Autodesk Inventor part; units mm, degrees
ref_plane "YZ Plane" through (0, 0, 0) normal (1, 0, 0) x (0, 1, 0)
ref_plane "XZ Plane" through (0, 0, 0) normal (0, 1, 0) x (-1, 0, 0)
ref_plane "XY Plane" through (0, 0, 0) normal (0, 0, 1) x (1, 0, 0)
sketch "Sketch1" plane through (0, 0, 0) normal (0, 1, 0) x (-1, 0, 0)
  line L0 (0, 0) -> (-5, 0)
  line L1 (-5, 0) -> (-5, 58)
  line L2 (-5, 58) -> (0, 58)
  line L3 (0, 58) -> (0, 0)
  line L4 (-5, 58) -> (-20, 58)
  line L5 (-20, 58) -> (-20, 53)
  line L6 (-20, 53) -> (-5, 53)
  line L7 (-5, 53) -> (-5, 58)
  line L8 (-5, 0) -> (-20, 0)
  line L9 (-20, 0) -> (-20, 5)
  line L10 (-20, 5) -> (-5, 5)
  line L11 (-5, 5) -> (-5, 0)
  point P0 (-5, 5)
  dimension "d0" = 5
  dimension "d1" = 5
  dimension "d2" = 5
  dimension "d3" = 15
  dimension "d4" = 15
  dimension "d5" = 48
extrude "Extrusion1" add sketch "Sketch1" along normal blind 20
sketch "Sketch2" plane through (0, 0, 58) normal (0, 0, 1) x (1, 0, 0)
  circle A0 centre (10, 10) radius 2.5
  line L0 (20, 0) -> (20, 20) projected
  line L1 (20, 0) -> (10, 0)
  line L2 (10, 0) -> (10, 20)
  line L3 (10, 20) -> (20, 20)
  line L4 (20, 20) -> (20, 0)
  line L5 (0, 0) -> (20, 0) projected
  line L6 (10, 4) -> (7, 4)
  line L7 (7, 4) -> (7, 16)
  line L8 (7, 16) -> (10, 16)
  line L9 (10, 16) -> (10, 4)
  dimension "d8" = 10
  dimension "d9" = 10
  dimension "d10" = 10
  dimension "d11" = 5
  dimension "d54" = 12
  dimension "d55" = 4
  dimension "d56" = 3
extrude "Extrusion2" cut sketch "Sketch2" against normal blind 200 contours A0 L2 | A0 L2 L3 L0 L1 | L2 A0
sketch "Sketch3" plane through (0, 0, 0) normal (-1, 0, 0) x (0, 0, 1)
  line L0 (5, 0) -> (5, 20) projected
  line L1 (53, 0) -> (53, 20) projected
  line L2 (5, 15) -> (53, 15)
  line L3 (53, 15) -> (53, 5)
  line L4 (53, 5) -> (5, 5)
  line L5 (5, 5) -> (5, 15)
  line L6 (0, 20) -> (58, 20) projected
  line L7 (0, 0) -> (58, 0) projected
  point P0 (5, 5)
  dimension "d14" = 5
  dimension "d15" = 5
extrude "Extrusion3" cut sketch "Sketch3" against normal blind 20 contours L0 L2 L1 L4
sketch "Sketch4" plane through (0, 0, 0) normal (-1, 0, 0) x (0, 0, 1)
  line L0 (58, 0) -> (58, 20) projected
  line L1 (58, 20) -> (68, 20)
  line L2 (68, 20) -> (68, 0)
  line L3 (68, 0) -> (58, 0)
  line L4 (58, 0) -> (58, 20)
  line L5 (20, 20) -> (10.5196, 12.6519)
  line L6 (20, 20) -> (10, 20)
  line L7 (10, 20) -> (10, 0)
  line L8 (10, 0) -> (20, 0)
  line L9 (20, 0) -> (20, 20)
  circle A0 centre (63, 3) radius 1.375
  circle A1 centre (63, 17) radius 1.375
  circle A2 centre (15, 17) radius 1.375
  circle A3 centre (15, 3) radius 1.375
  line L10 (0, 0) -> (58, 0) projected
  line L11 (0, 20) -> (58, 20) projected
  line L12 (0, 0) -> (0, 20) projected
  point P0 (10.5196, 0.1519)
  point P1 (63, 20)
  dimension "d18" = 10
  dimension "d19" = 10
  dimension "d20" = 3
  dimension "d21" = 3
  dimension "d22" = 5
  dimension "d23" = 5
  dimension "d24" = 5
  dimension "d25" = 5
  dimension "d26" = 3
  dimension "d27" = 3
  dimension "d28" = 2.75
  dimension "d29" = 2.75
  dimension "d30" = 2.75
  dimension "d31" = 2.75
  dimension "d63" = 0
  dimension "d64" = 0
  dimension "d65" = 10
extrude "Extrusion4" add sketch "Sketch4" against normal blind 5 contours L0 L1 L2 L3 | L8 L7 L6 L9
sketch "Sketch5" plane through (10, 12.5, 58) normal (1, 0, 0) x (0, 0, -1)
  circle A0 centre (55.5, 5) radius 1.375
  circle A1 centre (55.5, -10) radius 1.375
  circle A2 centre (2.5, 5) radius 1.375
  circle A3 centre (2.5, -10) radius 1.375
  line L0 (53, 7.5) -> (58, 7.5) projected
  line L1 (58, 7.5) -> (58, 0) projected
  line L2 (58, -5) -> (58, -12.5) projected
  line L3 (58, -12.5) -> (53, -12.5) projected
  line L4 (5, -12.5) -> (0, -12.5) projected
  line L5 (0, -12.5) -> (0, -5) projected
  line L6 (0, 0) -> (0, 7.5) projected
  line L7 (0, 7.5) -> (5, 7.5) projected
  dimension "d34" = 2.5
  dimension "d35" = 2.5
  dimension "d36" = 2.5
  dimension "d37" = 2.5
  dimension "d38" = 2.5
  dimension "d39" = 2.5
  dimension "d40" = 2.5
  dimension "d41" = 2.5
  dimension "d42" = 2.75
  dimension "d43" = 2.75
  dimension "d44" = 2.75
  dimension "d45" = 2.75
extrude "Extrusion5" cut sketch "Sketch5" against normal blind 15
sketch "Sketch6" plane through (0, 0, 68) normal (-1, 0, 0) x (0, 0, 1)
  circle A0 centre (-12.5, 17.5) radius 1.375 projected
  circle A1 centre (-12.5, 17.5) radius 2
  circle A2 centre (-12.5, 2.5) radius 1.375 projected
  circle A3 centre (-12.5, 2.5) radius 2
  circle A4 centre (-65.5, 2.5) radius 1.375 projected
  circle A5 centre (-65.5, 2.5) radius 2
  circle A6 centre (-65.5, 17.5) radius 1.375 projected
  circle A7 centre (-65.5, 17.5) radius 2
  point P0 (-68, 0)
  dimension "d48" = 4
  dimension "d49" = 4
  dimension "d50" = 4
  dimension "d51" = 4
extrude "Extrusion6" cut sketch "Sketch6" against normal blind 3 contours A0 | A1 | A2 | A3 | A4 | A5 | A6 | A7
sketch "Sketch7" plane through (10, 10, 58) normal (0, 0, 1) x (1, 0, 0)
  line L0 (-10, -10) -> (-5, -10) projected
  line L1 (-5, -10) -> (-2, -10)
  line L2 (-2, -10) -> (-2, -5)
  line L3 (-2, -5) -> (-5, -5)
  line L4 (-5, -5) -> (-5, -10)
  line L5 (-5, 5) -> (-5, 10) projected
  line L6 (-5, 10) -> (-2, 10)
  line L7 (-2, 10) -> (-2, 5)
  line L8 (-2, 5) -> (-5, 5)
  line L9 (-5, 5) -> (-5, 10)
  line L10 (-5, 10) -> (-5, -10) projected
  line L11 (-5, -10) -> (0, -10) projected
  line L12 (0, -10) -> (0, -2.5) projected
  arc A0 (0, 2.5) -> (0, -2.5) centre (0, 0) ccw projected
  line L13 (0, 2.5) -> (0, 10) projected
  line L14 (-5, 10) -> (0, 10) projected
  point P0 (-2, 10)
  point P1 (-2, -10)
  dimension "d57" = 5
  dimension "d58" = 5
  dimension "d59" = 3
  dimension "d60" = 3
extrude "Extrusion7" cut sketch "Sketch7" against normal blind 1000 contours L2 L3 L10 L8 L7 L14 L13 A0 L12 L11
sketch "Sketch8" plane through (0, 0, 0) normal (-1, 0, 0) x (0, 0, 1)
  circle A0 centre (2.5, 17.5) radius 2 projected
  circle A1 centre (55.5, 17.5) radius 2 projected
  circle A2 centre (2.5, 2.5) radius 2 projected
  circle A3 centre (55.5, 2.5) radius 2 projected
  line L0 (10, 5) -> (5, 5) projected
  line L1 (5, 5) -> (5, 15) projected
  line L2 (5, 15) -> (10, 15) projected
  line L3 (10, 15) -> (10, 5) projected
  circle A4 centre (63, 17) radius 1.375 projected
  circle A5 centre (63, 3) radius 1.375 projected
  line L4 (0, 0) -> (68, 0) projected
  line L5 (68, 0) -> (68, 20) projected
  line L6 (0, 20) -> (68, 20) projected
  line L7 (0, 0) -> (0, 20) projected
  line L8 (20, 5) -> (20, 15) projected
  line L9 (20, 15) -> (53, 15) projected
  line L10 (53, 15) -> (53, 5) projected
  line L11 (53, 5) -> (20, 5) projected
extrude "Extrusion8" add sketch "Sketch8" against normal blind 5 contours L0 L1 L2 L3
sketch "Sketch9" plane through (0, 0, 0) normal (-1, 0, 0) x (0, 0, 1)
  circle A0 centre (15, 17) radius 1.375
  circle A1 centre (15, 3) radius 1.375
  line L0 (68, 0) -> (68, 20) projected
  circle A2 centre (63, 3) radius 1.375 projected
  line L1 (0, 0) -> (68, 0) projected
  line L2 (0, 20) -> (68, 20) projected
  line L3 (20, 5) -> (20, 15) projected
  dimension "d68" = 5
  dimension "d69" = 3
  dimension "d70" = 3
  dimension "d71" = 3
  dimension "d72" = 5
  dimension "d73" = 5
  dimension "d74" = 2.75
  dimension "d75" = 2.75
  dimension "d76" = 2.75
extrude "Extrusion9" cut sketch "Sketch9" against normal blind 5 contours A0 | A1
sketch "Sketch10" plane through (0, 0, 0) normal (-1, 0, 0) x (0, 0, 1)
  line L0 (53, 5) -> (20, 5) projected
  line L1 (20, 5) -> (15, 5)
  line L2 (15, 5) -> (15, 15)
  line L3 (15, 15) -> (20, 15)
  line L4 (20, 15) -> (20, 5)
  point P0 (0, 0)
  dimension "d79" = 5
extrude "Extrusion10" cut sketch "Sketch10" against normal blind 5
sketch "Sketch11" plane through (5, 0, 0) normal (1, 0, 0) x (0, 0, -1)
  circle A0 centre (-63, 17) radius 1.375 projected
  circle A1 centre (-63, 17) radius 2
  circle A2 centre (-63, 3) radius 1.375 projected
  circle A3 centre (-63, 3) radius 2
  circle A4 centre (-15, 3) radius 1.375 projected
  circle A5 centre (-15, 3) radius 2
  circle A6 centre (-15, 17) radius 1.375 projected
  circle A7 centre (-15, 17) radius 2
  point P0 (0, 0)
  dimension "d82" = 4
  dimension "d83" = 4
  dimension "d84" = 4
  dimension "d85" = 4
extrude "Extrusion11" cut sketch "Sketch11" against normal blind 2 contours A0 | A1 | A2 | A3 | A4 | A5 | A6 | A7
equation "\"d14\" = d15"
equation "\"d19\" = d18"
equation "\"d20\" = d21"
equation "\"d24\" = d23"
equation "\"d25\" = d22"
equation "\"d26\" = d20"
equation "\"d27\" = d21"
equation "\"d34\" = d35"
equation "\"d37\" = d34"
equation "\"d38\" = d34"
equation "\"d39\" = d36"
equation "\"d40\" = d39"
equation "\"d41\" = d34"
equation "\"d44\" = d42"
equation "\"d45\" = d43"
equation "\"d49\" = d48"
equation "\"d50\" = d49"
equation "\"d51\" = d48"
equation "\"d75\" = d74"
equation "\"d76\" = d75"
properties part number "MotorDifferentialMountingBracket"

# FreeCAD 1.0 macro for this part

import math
import FreeCAD as App
import Part
import Sketcher
from FreeCAD import Vector
Q = App.Units.Quantity

doc = App.newDocument("Part")
body = doc.addObject("PartDesign::Body", "Body")

sketch1 = body.newObject("Sketcher::SketchObject", "Sketch")
sketch1.AttachmentSupport = (doc.getObject("XZ_Plane"), [""])
sketch1.MapMode = "FlatFace"
sketch1.addGeometry(Part.LineSegment(Vector(0, 0, 0), Vector(0, 58, 0)), False)
sketch1.addGeometry(Part.LineSegment(Vector(0, 58, 0), Vector(20, 58, 0)), False)
sketch1.addGeometry(Part.LineSegment(Vector(20, 58, 0), Vector(20, 53, 0)), False)
sketch1.addGeometry(Part.LineSegment(Vector(20, 53, 0), Vector(5, 53, 0)), False)
sketch1.addGeometry(Part.LineSegment(Vector(5, 53, 0), Vector(5, 5, 0)), False)
sketch1.addGeometry(Part.LineSegment(Vector(5, 5, 0), Vector(20, 5, 0)), False)
sketch1.addGeometry(Part.LineSegment(Vector(20, 5, 0), Vector(20, 0, 0)), False)
sketch1.addGeometry(Part.LineSegment(Vector(20, 0, 0), Vector(0, 0, 0)), False)
sketch1.addConstraint(Sketcher.Constraint("Coincident", 0, 2, 1, 1))
sketch1.addConstraint(Sketcher.Constraint("Coincident", 1, 2, 2, 1))
sketch1.addConstraint(Sketcher.Constraint("Coincident", 2, 2, 3, 1))
sketch1.addConstraint(Sketcher.Constraint("Coincident", 3, 2, 4, 1))
sketch1.addConstraint(Sketcher.Constraint("Coincident", 4, 2, 5, 1))
sketch1.addConstraint(Sketcher.Constraint("Coincident", 5, 2, 6, 1))
sketch1.addConstraint(Sketcher.Constraint("Coincident", 6, 2, 7, 1))
sketch1.addConstraint(Sketcher.Constraint("Coincident", 7, 2, 0, 1))
sketch1.addConstraint(Sketcher.Constraint("Vertical", 0))
sketch1.addConstraint(Sketcher.Constraint("Horizontal", 1))
sketch1.addConstraint(Sketcher.Constraint("Vertical", 2))
sketch1.addConstraint(Sketcher.Constraint("Horizontal", 3))
sketch1.addConstraint(Sketcher.Constraint("Vertical", 4))
sketch1.addConstraint(Sketcher.Constraint("Horizontal", 5))
sketch1.addConstraint(Sketcher.Constraint("Vertical", 6))
sketch1.addConstraint(Sketcher.Constraint("Horizontal", 7))
sketch1.addConstraint(Sketcher.Constraint("Coincident", 7, 2, -1, 1))
sketch1.addConstraint(Sketcher.Constraint("Vertical", 2, 2, 5, 2))
sketch1.addConstraint(Sketcher.Constraint("Equal", 2, 6))
sketch1.addConstraint(Sketcher.Constraint("DistanceX", 3, 2, 3, 1, Q("15 mm")))
sketch1.addConstraint(Sketcher.Constraint("DistanceY", 2, 2, 2, 1, Q("5 mm")))
sketch1.addConstraint(Sketcher.Constraint("DistanceY", 4, 2, 4, 1, Q("48 mm")))
sketch1.addConstraint(Sketcher.Constraint("DistanceX", -1, 1, 3, 2, Q("5 mm")))
pad1 = body.newObject("PartDesign::Pad", "Pad")
pad1.Profile = sketch1
pad1.Length = 20
pad1.Reversed = True

sketch2 = body.newObject("Sketcher::SketchObject", "Sketch001")
sketch2.AttachmentSupport = (doc.getObject("XY_Plane"), [""])
sketch2.MapMode = "FlatFace"
sketch2.AttachmentOffset = App.Placement(Vector(0, 0, 58), App.Rotation())
sketch2.addGeometry(Part.LineSegment(Vector(10, 7.5, 0), Vector(10, 0, 0)), False)
sketch2.addGeometry(Part.LineSegment(Vector(10, 0, 0), Vector(20, 0, 0)), False)
sketch2.addGeometry(Part.LineSegment(Vector(20, 0, 0), Vector(20, 20, 0)), False)
sketch2.addGeometry(Part.LineSegment(Vector(20, 20, 0), Vector(10, 20, 0)), False)
sketch2.addGeometry(Part.LineSegment(Vector(10, 20, 0), Vector(10, 12.5, 0)), False)
sketch2.addGeometry(Part.ArcOfCircle(Part.Circle(Vector(10, 10, 0), Vector(0, 0, 1), 2.5), math.radians(90), math.radians(270)), False)
sketch2.addConstraint(Sketcher.Constraint("Coincident", 0, 2, 1, 1))
sketch2.addConstraint(Sketcher.Constraint("Coincident", 1, 2, 2, 1))
sketch2.addConstraint(Sketcher.Constraint("Coincident", 2, 2, 3, 1))
sketch2.addConstraint(Sketcher.Constraint("Coincident", 3, 2, 4, 1))
sketch2.addConstraint(Sketcher.Constraint("Coincident", 4, 2, 5, 1))
sketch2.addConstraint(Sketcher.Constraint("Coincident", 5, 2, 0, 1))
sketch2.addConstraint(Sketcher.Constraint("Vertical", 0))
sketch2.addConstraint(Sketcher.Constraint("Horizontal", 1))
sketch2.addConstraint(Sketcher.Constraint("Vertical", 2))
sketch2.addConstraint(Sketcher.Constraint("Horizontal", 3))
sketch2.addConstraint(Sketcher.Constraint("Vertical", 4))
sketch2.addConstraint(Sketcher.Constraint("PointOnObject", 0, 2, -1))
sketch2.addConstraint(Sketcher.Constraint("Vertical", 5, 3, 0, 2))
sketch2.addConstraint(Sketcher.Constraint("Vertical", 0, 2, 3, 2))
sketch2.addConstraint(Sketcher.Constraint("Equal", 0, 4))
sketch2.addConstraint(Sketcher.Constraint("Radius", 5, Q("2.5 mm")))
sketch2.addConstraint(Sketcher.Constraint("DistanceX", 1, 1, 1, 2, Q("10 mm")))
sketch2.addConstraint(Sketcher.Constraint("DistanceX", -1, 1, 5, 3, Q("10 mm")))
sketch2.addConstraint(Sketcher.Constraint("DistanceY", -1, 1, 5, 3, Q("10 mm")))
pocket1 = body.newObject("PartDesign::Pocket", "Pocket")
pocket1.Profile = sketch2
pocket1.Length = 200

sketch3 = body.newObject("Sketcher::SketchObject", "Sketch002")
sketch3.AttachmentSupport = (doc.getObject("YZ_Plane"), [""])
sketch3.MapMode = "FlatFace"
sketch3.addGeometry(Part.LineSegment(Vector(15, 5, 0), Vector(5, 5, 0)), False)
sketch3.addGeometry(Part.LineSegment(Vector(5, 5, 0), Vector(5, 53, 0)), False)
sketch3.addGeometry(Part.LineSegment(Vector(5, 53, 0), Vector(15, 53, 0)), False)
sketch3.addGeometry(Part.LineSegment(Vector(15, 53, 0), Vector(15, 5, 0)), False)
sketch3.addConstraint(Sketcher.Constraint("Coincident", 0, 2, 1, 1))
sketch3.addConstraint(Sketcher.Constraint("Coincident", 1, 2, 2, 1))
sketch3.addConstraint(Sketcher.Constraint("Coincident", 2, 2, 3, 1))
sketch3.addConstraint(Sketcher.Constraint("Coincident", 3, 2, 0, 1))
sketch3.addConstraint(Sketcher.Constraint("Horizontal", 0))
sketch3.addConstraint(Sketcher.Constraint("Vertical", 1))
sketch3.addConstraint(Sketcher.Constraint("Horizontal", 2))
sketch3.addConstraint(Sketcher.Constraint("Vertical", 3))
sketch3.addConstraint(Sketcher.Constraint("DistanceX", -1, 1, 0, 2, Q("5 mm")))
sketch3.addConstraint(Sketcher.Constraint("DistanceY", -1, 1, 0, 2, Q("5 mm")))
sketch3.addConstraint(Sketcher.Constraint("DistanceX", 0, 2, 0, 1, Q("10 mm")))
sketch3.addConstraint(Sketcher.Constraint("DistanceY", 1, 1, 1, 2, Q("48 mm")))
pocket2 = body.newObject("PartDesign::Pocket", "Pocket001")
pocket2.Profile = sketch3
pocket2.Length = 20
pocket2.Reversed = True

sketch4 = body.newObject("Sketcher::SketchObject", "Sketch003")
sketch4.AttachmentSupport = (doc.getObject("YZ_Plane"), [""])
sketch4.MapMode = "FlatFace"
sketch4.addGeometry(Part.LineSegment(Vector(20, 58, 0), Vector(0, 58, 0)), False)
sketch4.addGeometry(Part.LineSegment(Vector(0, 58, 0), Vector(0, 68, 0)), False)
sketch4.addGeometry(Part.LineSegment(Vector(0, 68, 0), Vector(20, 68, 0)), False)
sketch4.addGeometry(Part.LineSegment(Vector(20, 68, 0), Vector(20, 58, 0)), False)
sketch4.addGeometry(Part.Circle(Vector(3, 63, 0), Vector(0, 0, 1), 1.4), False)
sketch4.addGeometry(Part.Circle(Vector(17, 63, 0), Vector(0, 0, 1), 1.4), False)
sketch4.addGeometry(Part.LineSegment(Vector(0, 10, 0), Vector(0, 20, 0)), False)
sketch4.addGeometry(Part.LineSegment(Vector(0, 20, 0), Vector(20, 20, 0)), False)
sketch4.addGeometry(Part.LineSegment(Vector(20, 20, 0), Vector(20, 10, 0)), False)
sketch4.addGeometry(Part.LineSegment(Vector(20, 10, 0), Vector(0, 10, 0)), False)
sketch4.addGeometry(Part.Circle(Vector(3, 15, 0), Vector(0, 0, 1), 1.4), False)
sketch4.addGeometry(Part.Circle(Vector(17, 15, 0), Vector(0, 0, 1), 1.4), False)
sketch4.addConstraint(Sketcher.Constraint("Coincident", 0, 2, 1, 1))
sketch4.addConstraint(Sketcher.Constraint("Coincident", 1, 2, 2, 1))
sketch4.addConstraint(Sketcher.Constraint("Coincident", 2, 2, 3, 1))
sketch4.addConstraint(Sketcher.Constraint("Coincident", 3, 2, 0, 1))
sketch4.addConstraint(Sketcher.Constraint("Coincident", 6, 2, 7, 1))
sketch4.addConstraint(Sketcher.Constraint("Coincident", 7, 2, 8, 1))
sketch4.addConstraint(Sketcher.Constraint("Coincident", 8, 2, 9, 1))
sketch4.addConstraint(Sketcher.Constraint("Coincident", 9, 2, 6, 1))
sketch4.addConstraint(Sketcher.Constraint("Horizontal", 0))
sketch4.addConstraint(Sketcher.Constraint("Vertical", 1))
sketch4.addConstraint(Sketcher.Constraint("Horizontal", 2))
sketch4.addConstraint(Sketcher.Constraint("Vertical", 3))
sketch4.addConstraint(Sketcher.Constraint("Vertical", 6))
sketch4.addConstraint(Sketcher.Constraint("Horizontal", 7))
sketch4.addConstraint(Sketcher.Constraint("Vertical", 8))
sketch4.addConstraint(Sketcher.Constraint("Horizontal", 9))
sketch4.addConstraint(Sketcher.Constraint("Equal", 4, 5))
sketch4.addConstraint(Sketcher.Constraint("Equal", 5, 10))
sketch4.addConstraint(Sketcher.Constraint("Equal", 10, 11))
sketch4.addConstraint(Sketcher.Constraint("PointOnObject", 0, 2, -2))
sketch4.addConstraint(Sketcher.Constraint("PointOnObject", 6, 2, -2))
sketch4.addConstraint(Sketcher.Constraint("Horizontal", 4, 3, 5, 3))
sketch4.addConstraint(Sketcher.Constraint("Horizontal", 10, 3, 11, 3))
sketch4.addConstraint(Sketcher.Constraint("Vertical", 4, 3, 10, 3))
sketch4.addConstraint(Sketcher.Constraint("Vertical", 5, 3, 11, 3))
sketch4.addConstraint(Sketcher.Constraint("Vertical", 3, 2, 7, 2))
sketch4.addConstraint(Sketcher.Constraint("Equal", 3, 6))
sketch4.addConstraint(Sketcher.Constraint("Diameter", 4, Q("2.75 mm")))
sketch4.addConstraint(Sketcher.Constraint("DistanceY", 1, 1, 1, 2, Q("10 mm")))
sketch4.addConstraint(Sketcher.Constraint("DistanceX", -1, 1, 4, 3, Q("3 mm")))
sketch4.addConstraint(Sketcher.Constraint("DistanceY", -1, 1, 8, 2, Q("10 mm")))
sketch4.addConstraint(Sketcher.Constraint("DistanceY", 0, 2, 4, 3, Q("5 mm")))
sketch4.addConstraint(Sketcher.Constraint("DistanceX", 5, 3, 2, 2, Q("3 mm")))
sketch4.addConstraint(Sketcher.Constraint("DistanceY", 10, 3, 6, 2, Q("5 mm")))
sketch4.addConstraint(Sketcher.Constraint("DistanceX", 0, 2, 0, 1, Q("20 mm")))
sketch4.addConstraint(Sketcher.Constraint("DistanceY", -1, 1, 4, 3, Q("63 mm")))
pad2 = body.newObject("PartDesign::Pad", "Pad001")
pad2.Profile = sketch4
pad2.Length = 5

sketch5 = body.newObject("Sketcher::SketchObject", "Sketch004")
sketch5.AttachmentSupport = (doc.getObject("YZ_Plane"), [""])
sketch5.MapMode = "FlatFace"
sketch5.AttachmentOffset = App.Placement(Vector(0, 0, 10), App.Rotation())
sketch5.addGeometry(Part.Circle(Vector(17.5, 2.5, 0), Vector(0, 0, 1), 1.4), False)
sketch5.addGeometry(Part.Circle(Vector(2.5, 2.5, 0), Vector(0, 0, 1), 1.4), False)
sketch5.addGeometry(Part.Circle(Vector(17.5, 55.5, 0), Vector(0, 0, 1), 1.4), False)
sketch5.addGeometry(Part.Circle(Vector(2.5, 55.5, 0), Vector(0, 0, 1), 1.4), False)
sketch5.addConstraint(Sketcher.Constraint("Equal", 0, 1))
sketch5.addConstraint(Sketcher.Constraint("Equal", 1, 2))
sketch5.addConstraint(Sketcher.Constraint("Equal", 2, 3))
sketch5.addConstraint(Sketcher.Constraint("Horizontal", 0, 3, 1, 3))
sketch5.addConstraint(Sketcher.Constraint("Horizontal", 2, 3, 3, 3))
sketch5.addConstraint(Sketcher.Constraint("Vertical", 0, 3, 2, 3))
sketch5.addConstraint(Sketcher.Constraint("Vertical", 1, 3, 3, 3))
sketch5.addConstraint(Sketcher.Constraint("Diameter", 0, Q("2.75 mm")))
sketch5.addConstraint(Sketcher.Constraint("DistanceY", -1, 1, 0, 3, Q("2.5 mm")))
sketch5.addConstraint(Sketcher.Constraint("DistanceX", -1, 1, 1, 3, Q("2.5 mm")))
sketch5.addConstraint(Sketcher.Constraint("DistanceX", 1, 3, 0, 3, Q("15 mm")))
sketch5.addConstraint(Sketcher.Constraint("DistanceY", 0, 3, 2, 3, Q("53 mm")))
pocket3 = body.newObject("PartDesign::Pocket", "Pocket002")
pocket3.Profile = sketch5
pocket3.Length = 15

sketch6 = body.newObject("Sketcher::SketchObject", "Sketch005")
sketch6.AttachmentSupport = (doc.getObject("YZ_Plane"), [""])
sketch6.MapMode = "FlatFace"
sketch6.addGeometry(Part.Circle(Vector(17.5, 55.5, 0), Vector(0, 0, 1), 2), False)
sketch6.addGeometry(Part.Circle(Vector(2.5, 55.5, 0), Vector(0, 0, 1), 2), False)
sketch6.addGeometry(Part.Circle(Vector(2.5, 2.5, 0), Vector(0, 0, 1), 2), False)
sketch6.addGeometry(Part.Circle(Vector(17.5, 2.5, 0), Vector(0, 0, 1), 2), False)
sketch6.addConstraint(Sketcher.Constraint("Equal", 0, 1))
sketch6.addConstraint(Sketcher.Constraint("Equal", 1, 2))
sketch6.addConstraint(Sketcher.Constraint("Equal", 2, 3))
sketch6.addConstraint(Sketcher.Constraint("Horizontal", 0, 3, 1, 3))
sketch6.addConstraint(Sketcher.Constraint("Horizontal", 2, 3, 3, 3))
sketch6.addConstraint(Sketcher.Constraint("Vertical", 1, 3, 2, 3))
sketch6.addConstraint(Sketcher.Constraint("Vertical", 0, 3, 3, 3))
sketch6.addConstraint(Sketcher.Constraint("Diameter", 0, Q("4 mm")))
sketch6.addConstraint(Sketcher.Constraint("DistanceX", 1, 3, 0, 3, Q("15 mm")))
sketch6.addConstraint(Sketcher.Constraint("DistanceY", 2, 3, 1, 3, Q("53 mm")))
sketch6.addConstraint(Sketcher.Constraint("DistanceX", -1, 1, 0, 3, Q("17.5 mm")))
sketch6.addConstraint(Sketcher.Constraint("DistanceY", -1, 1, 0, 3, Q("55.5 mm")))
pocket4 = body.newObject("PartDesign::Pocket", "Pocket003")
pocket4.Profile = sketch6
pocket4.Length = 3
pocket4.Reversed = True

sketch7 = body.newObject("Sketcher::SketchObject", "Sketch006")
sketch7.AttachmentSupport = (doc.getObject("XY_Plane"), [""])
sketch7.MapMode = "FlatFace"
sketch7.AttachmentOffset = App.Placement(Vector(0, 0, 58), App.Rotation())
sketch7.addGeometry(Part.LineSegment(Vector(8, 5, 0), Vector(8, 0, 0)), False)
sketch7.addGeometry(Part.LineSegment(Vector(8, 0, 0), Vector(10, 0, 0)), False)
sketch7.addGeometry(Part.LineSegment(Vector(10, 0, 0), Vector(10, 7.5, 0)), False)
sketch7.addGeometry(Part.ArcOfCircle(Part.Circle(Vector(10, 10, 0), Vector(0, 0, 1), 2.5), math.radians(90), math.radians(270)), False)
sketch7.addGeometry(Part.LineSegment(Vector(10, 12.5, 0), Vector(10, 20, 0)), False)
sketch7.addGeometry(Part.LineSegment(Vector(10, 20, 0), Vector(8, 20, 0)), False)
sketch7.addGeometry(Part.LineSegment(Vector(8, 20, 0), Vector(8, 15, 0)), False)
sketch7.addGeometry(Part.LineSegment(Vector(8, 15, 0), Vector(5, 15, 0)), False)
sketch7.addGeometry(Part.LineSegment(Vector(5, 15, 0), Vector(5, 5, 0)), False)
sketch7.addGeometry(Part.LineSegment(Vector(5, 5, 0), Vector(8, 5, 0)), False)
sketch7.addConstraint(Sketcher.Constraint("Coincident", 0, 2, 1, 1))
sketch7.addConstraint(Sketcher.Constraint("Coincident", 1, 2, 2, 1))
sketch7.addConstraint(Sketcher.Constraint("Coincident", 2, 2, 3, 2))
sketch7.addConstraint(Sketcher.Constraint("Coincident", 3, 1, 4, 1))
sketch7.addConstraint(Sketcher.Constraint("Coincident", 4, 2, 5, 1))
sketch7.addConstraint(Sketcher.Constraint("Coincident", 5, 2, 6, 1))
sketch7.addConstraint(Sketcher.Constraint("Coincident", 6, 2, 7, 1))
sketch7.addConstraint(Sketcher.Constraint("Coincident", 7, 2, 8, 1))
sketch7.addConstraint(Sketcher.Constraint("Coincident", 8, 2, 9, 1))
sketch7.addConstraint(Sketcher.Constraint("Coincident", 9, 2, 0, 1))
sketch7.addConstraint(Sketcher.Constraint("Vertical", 0))
sketch7.addConstraint(Sketcher.Constraint("Horizontal", 1))
sketch7.addConstraint(Sketcher.Constraint("Vertical", 2))
sketch7.addConstraint(Sketcher.Constraint("Vertical", 4))
sketch7.addConstraint(Sketcher.Constraint("Horizontal", 5))
sketch7.addConstraint(Sketcher.Constraint("Vertical", 6))
sketch7.addConstraint(Sketcher.Constraint("Horizontal", 7))
sketch7.addConstraint(Sketcher.Constraint("Vertical", 8))
sketch7.addConstraint(Sketcher.Constraint("Horizontal", 9))
sketch7.addConstraint(Sketcher.Constraint("PointOnObject", 0, 2, -1))
sketch7.addConstraint(Sketcher.Constraint("Vertical", 3, 3, 1, 2))
sketch7.addConstraint(Sketcher.Constraint("Vertical", 2, 2, 3, 1))
sketch7.addConstraint(Sketcher.Constraint("Vertical", 0, 2, 5, 2))
sketch7.addConstraint(Sketcher.Constraint("Equal", 2, 4))
sketch7.addConstraint(Sketcher.Constraint("Equal", 0, 6))
sketch7.addConstraint(Sketcher.Constraint("Radius", 3, Q("2.5 mm")))
sketch7.addConstraint(Sketcher.Constraint("DistanceX", 7, 2, 7, 1, Q("3 mm")))
sketch7.addConstraint(Sketcher.Constraint("DistanceY", 0, 2, 0, 1, Q("5 mm")))
sketch7.addConstraint(Sketcher.Constraint("DistanceX", -1, 1, 7, 2, Q("5 mm")))
sketch7.addConstraint(Sketcher.Constraint("DistanceY", 3, 3, 6, 2, Q("5 mm")))
sketch7.addConstraint(Sketcher.Constraint("DistanceX", 7, 2, 3, 1, Q("5 mm")))
pocket5 = body.newObject("PartDesign::Pocket", "Pocket004")
pocket5.Profile = sketch7
pocket5.Length = 1000

sketch8 = body.newObject("Sketcher::SketchObject", "Sketch007")
sketch8.AttachmentSupport = (doc.getObject("YZ_Plane"), [""])
sketch8.MapMode = "FlatFace"
sketch8.addGeometry(Part.LineSegment(Vector(5, 5, 0), Vector(5, 10, 0)), False)
sketch8.addGeometry(Part.LineSegment(Vector(5, 10, 0), Vector(15, 10, 0)), False)
sketch8.addGeometry(Part.LineSegment(Vector(15, 10, 0), Vector(15, 5, 0)), False)
sketch8.addGeometry(Part.LineSegment(Vector(15, 5, 0), Vector(5, 5, 0)), False)
sketch8.addConstraint(Sketcher.Constraint("Coincident", 0, 2, 1, 1))
sketch8.addConstraint(Sketcher.Constraint("Coincident", 1, 2, 2, 1))
sketch8.addConstraint(Sketcher.Constraint("Coincident", 2, 2, 3, 1))
sketch8.addConstraint(Sketcher.Constraint("Coincident", 3, 2, 0, 1))
sketch8.addConstraint(Sketcher.Constraint("Vertical", 0))
sketch8.addConstraint(Sketcher.Constraint("Horizontal", 1))
sketch8.addConstraint(Sketcher.Constraint("Vertical", 2))
sketch8.addConstraint(Sketcher.Constraint("Horizontal", 3))
sketch8.addConstraint(Sketcher.Constraint("DistanceX", 1, 1, 1, 2, Q("10 mm")))
sketch8.addConstraint(Sketcher.Constraint("DistanceY", 0, 1, 0, 2, Q("5 mm")))
sketch8.addConstraint(Sketcher.Constraint("DistanceX", -1, 1, 0, 2, Q("5 mm")))
sketch8.addConstraint(Sketcher.Constraint("DistanceY", -1, 1, 0, 2, Q("10 mm")))
pad3 = body.newObject("PartDesign::Pad", "Pad002")
pad3.Profile = sketch8
pad3.Length = 5

sketch9 = body.newObject("Sketcher::SketchObject", "Sketch008")
sketch9.AttachmentSupport = (doc.getObject("YZ_Plane"), [""])
sketch9.MapMode = "FlatFace"
sketch9.addGeometry(Part.Circle(Vector(17, 15, 0), Vector(0, 0, 1), 1.4), False)
sketch9.addGeometry(Part.Circle(Vector(3, 15, 0), Vector(0, 0, 1), 1.4), False)
sketch9.addConstraint(Sketcher.Constraint("Equal", 0, 1))
sketch9.addConstraint(Sketcher.Constraint("Horizontal", 0, 3, 1, 3))
sketch9.addConstraint(Sketcher.Constraint("Diameter", 0, Q("2.75 mm")))
sketch9.addConstraint(Sketcher.Constraint("DistanceX", -1, 1, 1, 3, Q("3 mm")))
sketch9.addConstraint(Sketcher.Constraint("DistanceX", -1, 1, 0, 3, Q("17 mm")))
sketch9.addConstraint(Sketcher.Constraint("DistanceY", -1, 1, 0, 3, Q("15 mm")))
pocket6 = body.newObject("PartDesign::Pocket", "Pocket005")
pocket6.Profile = sketch9
pocket6.Length = 5
pocket6.Reversed = True

sketch10 = body.newObject("Sketcher::SketchObject", "Sketch009")
sketch10.AttachmentSupport = (doc.getObject("YZ_Plane"), [""])
sketch10.MapMode = "FlatFace"
sketch10.addGeometry(Part.LineSegment(Vector(5, 15, 0), Vector(5, 20, 0)), False)
sketch10.addGeometry(Part.LineSegment(Vector(5, 20, 0), Vector(15, 20, 0)), False)
sketch10.addGeometry(Part.LineSegment(Vector(15, 20, 0), Vector(15, 15, 0)), False)
sketch10.addGeometry(Part.LineSegment(Vector(15, 15, 0), Vector(5, 15, 0)), False)
sketch10.addConstraint(Sketcher.Constraint("Coincident", 0, 2, 1, 1))
sketch10.addConstraint(Sketcher.Constraint("Coincident", 1, 2, 2, 1))
sketch10.addConstraint(Sketcher.Constraint("Coincident", 2, 2, 3, 1))
sketch10.addConstraint(Sketcher.Constraint("Coincident", 3, 2, 0, 1))
sketch10.addConstraint(Sketcher.Constraint("Vertical", 0))
sketch10.addConstraint(Sketcher.Constraint("Horizontal", 1))
sketch10.addConstraint(Sketcher.Constraint("Vertical", 2))
sketch10.addConstraint(Sketcher.Constraint("Horizontal", 3))
sketch10.addConstraint(Sketcher.Constraint("DistanceY", 0, 1, 0, 2, Q("5 mm")))
sketch10.addConstraint(Sketcher.Constraint("DistanceX", -1, 1, 0, 2, Q("5 mm")))
sketch10.addConstraint(Sketcher.Constraint("DistanceX", 1, 1, 1, 2, Q("10 mm")))
sketch10.addConstraint(Sketcher.Constraint("DistanceY", -1, 1, 0, 2, Q("20 mm")))
pocket7 = body.newObject("PartDesign::Pocket", "Pocket006")
pocket7.Profile = sketch10
pocket7.Length = 5
pocket7.Reversed = True

sketch11 = body.newObject("Sketcher::SketchObject", "Sketch010")
sketch11.AttachmentSupport = (doc.getObject("YZ_Plane"), [""])
sketch11.MapMode = "FlatFace"
sketch11.AttachmentOffset = App.Placement(Vector(0, 0, 5), App.Rotation())
sketch11.addGeometry(Part.Circle(Vector(17, 63, 0), Vector(0, 0, 1), 2), False)
sketch11.addGeometry(Part.Circle(Vector(3, 63, 0), Vector(0, 0, 1), 2), False)
sketch11.addGeometry(Part.Circle(Vector(3, 15, 0), Vector(0, 0, 1), 2), False)
sketch11.addGeometry(Part.Circle(Vector(17, 15, 0), Vector(0, 0, 1), 2), False)
sketch11.addConstraint(Sketcher.Constraint("Equal", 0, 1))
sketch11.addConstraint(Sketcher.Constraint("Equal", 1, 2))
sketch11.addConstraint(Sketcher.Constraint("Equal", 2, 3))
sketch11.addConstraint(Sketcher.Constraint("Horizontal", 0, 3, 1, 3))
sketch11.addConstraint(Sketcher.Constraint("Horizontal", 2, 3, 3, 3))
sketch11.addConstraint(Sketcher.Constraint("Vertical", 1, 3, 2, 3))
sketch11.addConstraint(Sketcher.Constraint("Vertical", 0, 3, 3, 3))
sketch11.addConstraint(Sketcher.Constraint("Diameter", 0, Q("4 mm")))
sketch11.addConstraint(Sketcher.Constraint("DistanceX", -1, 1, 0, 3, Q("17 mm")))
sketch11.addConstraint(Sketcher.Constraint("DistanceY", -1, 1, 0, 3, Q("63 mm")))
sketch11.addConstraint(Sketcher.Constraint("DistanceX", -1, 1, 1, 3, Q("3 mm")))
sketch11.addConstraint(Sketcher.Constraint("DistanceY", -1, 1, 2, 3, Q("15 mm")))
pocket8 = body.newObject("PartDesign::Pocket", "Pocket007")
pocket8.Profile = sketch11
pocket8.Length = 2

doc.recompute()
